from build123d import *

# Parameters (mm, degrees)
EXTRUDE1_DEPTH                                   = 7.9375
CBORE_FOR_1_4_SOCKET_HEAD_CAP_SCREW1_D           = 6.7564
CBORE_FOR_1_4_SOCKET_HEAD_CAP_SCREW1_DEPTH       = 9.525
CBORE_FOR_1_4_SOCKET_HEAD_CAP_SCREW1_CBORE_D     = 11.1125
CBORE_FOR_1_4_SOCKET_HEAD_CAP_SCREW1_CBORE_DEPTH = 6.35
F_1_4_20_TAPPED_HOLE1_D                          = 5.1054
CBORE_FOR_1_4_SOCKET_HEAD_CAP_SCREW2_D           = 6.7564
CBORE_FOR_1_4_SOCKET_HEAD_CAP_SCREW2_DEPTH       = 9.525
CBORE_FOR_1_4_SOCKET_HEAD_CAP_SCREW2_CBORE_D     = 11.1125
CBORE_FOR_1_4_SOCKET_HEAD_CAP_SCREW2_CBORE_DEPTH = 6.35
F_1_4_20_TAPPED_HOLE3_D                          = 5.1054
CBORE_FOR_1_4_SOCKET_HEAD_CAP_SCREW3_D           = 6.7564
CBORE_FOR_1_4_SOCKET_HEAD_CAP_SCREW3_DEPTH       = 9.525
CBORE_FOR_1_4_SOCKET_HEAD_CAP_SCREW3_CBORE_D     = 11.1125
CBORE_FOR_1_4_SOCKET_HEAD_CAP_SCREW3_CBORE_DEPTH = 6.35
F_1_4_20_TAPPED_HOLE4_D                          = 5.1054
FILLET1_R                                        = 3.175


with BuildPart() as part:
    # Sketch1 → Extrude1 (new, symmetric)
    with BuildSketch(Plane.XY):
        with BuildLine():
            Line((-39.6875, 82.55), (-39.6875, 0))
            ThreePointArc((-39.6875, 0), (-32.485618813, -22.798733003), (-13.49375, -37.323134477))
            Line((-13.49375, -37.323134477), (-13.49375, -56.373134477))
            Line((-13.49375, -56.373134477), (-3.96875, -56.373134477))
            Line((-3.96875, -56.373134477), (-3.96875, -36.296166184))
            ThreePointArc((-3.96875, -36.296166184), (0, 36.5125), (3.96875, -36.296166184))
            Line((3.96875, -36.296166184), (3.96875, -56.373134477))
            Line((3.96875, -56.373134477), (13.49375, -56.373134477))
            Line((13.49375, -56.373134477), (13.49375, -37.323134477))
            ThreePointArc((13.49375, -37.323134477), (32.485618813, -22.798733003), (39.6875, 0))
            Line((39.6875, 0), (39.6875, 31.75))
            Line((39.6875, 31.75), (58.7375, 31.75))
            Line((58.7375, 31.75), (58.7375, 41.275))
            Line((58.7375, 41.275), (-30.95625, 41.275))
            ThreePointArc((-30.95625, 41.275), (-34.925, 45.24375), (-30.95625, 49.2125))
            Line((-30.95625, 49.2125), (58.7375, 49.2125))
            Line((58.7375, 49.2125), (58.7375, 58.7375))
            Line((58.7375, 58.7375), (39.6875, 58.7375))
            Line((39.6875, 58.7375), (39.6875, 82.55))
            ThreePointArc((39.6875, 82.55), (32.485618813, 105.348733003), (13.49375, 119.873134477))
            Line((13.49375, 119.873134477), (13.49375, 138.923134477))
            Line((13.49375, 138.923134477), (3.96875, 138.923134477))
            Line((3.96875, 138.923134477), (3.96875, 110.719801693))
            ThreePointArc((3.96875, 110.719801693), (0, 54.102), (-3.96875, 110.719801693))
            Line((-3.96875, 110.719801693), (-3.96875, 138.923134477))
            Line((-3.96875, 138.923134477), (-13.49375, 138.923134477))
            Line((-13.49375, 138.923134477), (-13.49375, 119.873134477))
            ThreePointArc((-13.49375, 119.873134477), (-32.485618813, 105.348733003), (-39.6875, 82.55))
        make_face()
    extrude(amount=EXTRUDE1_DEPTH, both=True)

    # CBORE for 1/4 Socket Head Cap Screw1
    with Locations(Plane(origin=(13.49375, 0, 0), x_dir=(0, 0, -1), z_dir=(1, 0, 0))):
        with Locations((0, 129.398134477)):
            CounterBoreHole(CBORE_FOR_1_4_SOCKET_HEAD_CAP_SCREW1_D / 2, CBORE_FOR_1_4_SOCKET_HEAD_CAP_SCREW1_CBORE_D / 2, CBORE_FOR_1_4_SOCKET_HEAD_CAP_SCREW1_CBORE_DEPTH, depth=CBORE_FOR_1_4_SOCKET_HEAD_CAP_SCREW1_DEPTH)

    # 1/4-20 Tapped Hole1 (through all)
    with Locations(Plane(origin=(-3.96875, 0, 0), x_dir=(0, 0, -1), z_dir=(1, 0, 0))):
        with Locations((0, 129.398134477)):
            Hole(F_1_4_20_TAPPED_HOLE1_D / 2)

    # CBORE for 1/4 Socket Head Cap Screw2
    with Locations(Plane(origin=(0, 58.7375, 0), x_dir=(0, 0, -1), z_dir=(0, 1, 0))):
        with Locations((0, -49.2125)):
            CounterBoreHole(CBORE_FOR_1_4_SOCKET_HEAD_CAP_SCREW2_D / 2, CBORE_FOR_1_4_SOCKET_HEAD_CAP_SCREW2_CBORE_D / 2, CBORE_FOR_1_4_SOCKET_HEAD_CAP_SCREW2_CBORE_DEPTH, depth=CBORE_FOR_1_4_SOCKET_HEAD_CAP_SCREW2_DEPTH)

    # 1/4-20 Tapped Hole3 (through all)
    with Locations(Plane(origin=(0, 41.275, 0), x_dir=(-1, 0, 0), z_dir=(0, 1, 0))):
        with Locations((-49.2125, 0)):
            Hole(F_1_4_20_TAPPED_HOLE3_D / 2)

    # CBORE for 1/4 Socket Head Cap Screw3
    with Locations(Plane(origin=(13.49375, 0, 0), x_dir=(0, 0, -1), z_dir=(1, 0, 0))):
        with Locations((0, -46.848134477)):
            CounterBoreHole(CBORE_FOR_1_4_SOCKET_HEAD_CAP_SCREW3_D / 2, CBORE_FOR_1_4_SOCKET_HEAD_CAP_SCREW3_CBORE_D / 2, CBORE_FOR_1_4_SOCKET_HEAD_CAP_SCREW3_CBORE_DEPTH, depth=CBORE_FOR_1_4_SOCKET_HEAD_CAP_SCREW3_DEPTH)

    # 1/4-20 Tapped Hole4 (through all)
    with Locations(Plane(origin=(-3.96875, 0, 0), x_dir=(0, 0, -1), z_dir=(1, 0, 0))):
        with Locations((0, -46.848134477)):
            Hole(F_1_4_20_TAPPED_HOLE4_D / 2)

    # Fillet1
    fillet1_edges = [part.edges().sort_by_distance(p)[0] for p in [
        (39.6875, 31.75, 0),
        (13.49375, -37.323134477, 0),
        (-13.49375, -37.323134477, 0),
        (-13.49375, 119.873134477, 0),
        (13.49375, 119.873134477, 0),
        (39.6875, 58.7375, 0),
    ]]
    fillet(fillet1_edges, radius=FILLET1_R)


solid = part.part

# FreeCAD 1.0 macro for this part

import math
import FreeCAD as App
import Part
import Sketcher
from FreeCAD import Vector
Q = App.Units.Quantity


def edges_at(feature, points):
    """Names of the edges that pass closest to the given points."""
    edges = feature.Shape.Edges
    near = lambda p: min(range(len(edges)), key=lambda i: edges[i].distToShape(Part.Vertex(*p))[0])
    return sorted({f"Edge{near(p) + 1}" for p in points})

doc = App.newDocument("Part")
body = doc.addObject("PartDesign::Body", "Body")

# Sketch on XY plane
sketch1 = body.newObject("Sketcher::SketchObject", "Sketch")
sketch1.AttachmentSupport = (doc.getObject("XY_Plane"), [""])
sketch1.MapMode = "FlatFace"
sketch1.addGeometry(Part.LineSegment(Vector(-39.7, 82.5, 0), Vector(-39.7, 0, 0)), False)
sketch1.addGeometry(Part.ArcOfCircle(Part.Circle(Vector(0, 0, 0), Vector(0, 0, 1), 39.7), math.radians(-180), math.radians(-110)), False)
sketch1.addGeometry(Part.LineSegment(Vector(-13.5, -37.3, 0), Vector(-13.5, -56.4, 0)), False)
sketch1.addGeometry(Part.LineSegment(Vector(-13.5, -56.4, 0), Vector(-4, -56.4, 0)), False)
sketch1.addGeometry(Part.LineSegment(Vector(-4, -56.4, 0), Vector(-4, -36.3, 0)), False)
sketch1.addGeometry(Part.ArcOfCircle(Part.Circle(Vector(0, 0, 0), Vector(0, 0, 1), 36.5), math.radians(-84), math.radians(264)), False)
sketch1.addGeometry(Part.LineSegment(Vector(4, -36.3, 0), Vector(4, -56.4, 0)), False)
sketch1.addGeometry(Part.LineSegment(Vector(4, -56.4, 0), Vector(13.5, -56.4, 0)), False)
sketch1.addGeometry(Part.LineSegment(Vector(13.5, -56.4, 0), Vector(13.5, -37.3, 0)), False)
sketch1.addGeometry(Part.ArcOfCircle(Part.Circle(Vector(0, 0, 0), Vector(0, 0, 1), 39.7), math.radians(-70), math.radians(0)), False)
sketch1.addGeometry(Part.LineSegment(Vector(39.7, 0, 0), Vector(39.7, 31.8, 0)), False)
sketch1.addGeometry(Part.LineSegment(Vector(39.7, 31.8, 0), Vector(58.7, 31.8, 0)), False)
sketch1.addGeometry(Part.LineSegment(Vector(58.7, 31.8, 0), Vector(58.7, 41.3, 0)), False)
sketch1.addGeometry(Part.LineSegment(Vector(58.7, 41.3, 0), Vector(-31, 41.3, 0)), False)
sketch1.addGeometry(Part.ArcOfCircle(Part.Circle(Vector(-31, 45.2, 0), Vector(0, 0, 1), 4), math.radians(90), math.radians(270)), False)
sketch1.addGeometry(Part.LineSegment(Vector(-31, 49.2, 0), Vector(58.7, 49.2, 0)), False)
sketch1.addGeometry(Part.LineSegment(Vector(58.7, 49.2, 0), Vector(58.7, 58.7, 0)), False)
sketch1.addGeometry(Part.LineSegment(Vector(58.7, 58.7, 0), Vector(39.7, 58.7, 0)), False)
sketch1.addGeometry(Part.LineSegment(Vector(39.7, 58.7, 0), Vector(39.7, 82.5, 0)), False)
sketch1.addGeometry(Part.ArcOfCircle(Part.Circle(Vector(0, 82.5, 0), Vector(0, 0, 1), 39.7), math.radians(0), math.radians(70)), False)
sketch1.addGeometry(Part.LineSegment(Vector(13.5, 119.9, 0), Vector(13.5, 138.9, 0)), False)
sketch1.addGeometry(Part.LineSegment(Vector(13.5, 138.9, 0), Vector(4, 138.9, 0)), False)
sketch1.addGeometry(Part.LineSegment(Vector(4, 138.9, 0), Vector(4, 110.7, 0)), False)
sketch1.addGeometry(Part.ArcOfCircle(Part.Circle(Vector(0, 82.5, 0), Vector(0, 0, 1), 28.4), math.radians(98), math.radians(442)), False)
sketch1.addGeometry(Part.LineSegment(Vector(-4, 110.7, 0), Vector(-4, 138.9, 0)), False)
sketch1.addGeometry(Part.LineSegment(Vector(-4, 138.9, 0), Vector(-13.5, 138.9, 0)), False)
sketch1.addGeometry(Part.LineSegment(Vector(-13.5, 138.9, 0), Vector(-13.5, 119.9, 0)), False)
sketch1.addGeometry(Part.ArcOfCircle(Part.Circle(Vector(0, 82.5, 0), Vector(0, 0, 1), 39.7), math.radians(110), math.radians(180)), False)
sketch1.addConstraint(Sketcher.Constraint("Tangent", 0, 2, 1, 1))
sketch1.addConstraint(Sketcher.Constraint("Coincident", 1, 2, 2, 1))
sketch1.addConstraint(Sketcher.Constraint("Coincident", 2, 2, 3, 1))
sketch1.addConstraint(Sketcher.Constraint("Coincident", 3, 2, 4, 1))
sketch1.addConstraint(Sketcher.Constraint("Coincident", 4, 2, 5, 2))
sketch1.addConstraint(Sketcher.Constraint("Coincident", 5, 1, 6, 1))
sketch1.addConstraint(Sketcher.Constraint("Coincident", 6, 2, 7, 1))
sketch1.addConstraint(Sketcher.Constraint("Coincident", 7, 2, 8, 1))
sketch1.addConstraint(Sketcher.Constraint("Coincident", 8, 2, 9, 1))
sketch1.addConstraint(Sketcher.Constraint("Tangent", 9, 2, 10, 1))
sketch1.addConstraint(Sketcher.Constraint("Coincident", 10, 2, 11, 1))
sketch1.addConstraint(Sketcher.Constraint("Coincident", 11, 2, 12, 1))
sketch1.addConstraint(Sketcher.Constraint("Coincident", 12, 2, 13, 1))
sketch1.addConstraint(Sketcher.Constraint("Tangent", 13, 2, 14, 2))
sketch1.addConstraint(Sketcher.Constraint("Tangent", 14, 1, 15, 1))
sketch1.addConstraint(Sketcher.Constraint("Coincident", 15, 2, 16, 1))
sketch1.addConstraint(Sketcher.Constraint("Coincident", 16, 2, 17, 1))
sketch1.addConstraint(Sketcher.Constraint("Coincident", 17, 2, 18, 1))
sketch1.addConstraint(Sketcher.Constraint("Tangent", 18, 2, 19, 1))
sketch1.addConstraint(Sketcher.Constraint("Coincident", 19, 2, 20, 1))
sketch1.addConstraint(Sketcher.Constraint("Coincident", 20, 2, 21, 1))
sketch1.addConstraint(Sketcher.Constraint("Coincident", 21, 2, 22, 1))
sketch1.addConstraint(Sketcher.Constraint("Coincident", 22, 2, 23, 2))
sketch1.addConstraint(Sketcher.Constraint("Coincident", 23, 1, 24, 1))
sketch1.addConstraint(Sketcher.Constraint("Coincident", 24, 2, 25, 1))
sketch1.addConstraint(Sketcher.Constraint("Coincident", 25, 2, 26, 1))
sketch1.addConstraint(Sketcher.Constraint("Coincident", 26, 2, 27, 1))
sketch1.addConstraint(Sketcher.Constraint("Tangent", 27, 2, 0, 1))
sketch1.addConstraint(Sketcher.Constraint("Vertical", 0))
sketch1.addConstraint(Sketcher.Constraint("Vertical", 2))
sketch1.addConstraint(Sketcher.Constraint("Horizontal", 3))
sketch1.addConstraint(Sketcher.Constraint("Vertical", 4))
sketch1.addConstraint(Sketcher.Constraint("Vertical", 6))
sketch1.addConstraint(Sketcher.Constraint("Horizontal", 7))
sketch1.addConstraint(Sketcher.Constraint("Vertical", 8))
sketch1.addConstraint(Sketcher.Constraint("Vertical", 10))
sketch1.addConstraint(Sketcher.Constraint("Horizontal", 11))
sketch1.addConstraint(Sketcher.Constraint("Vertical", 12))
sketch1.addConstraint(Sketcher.Constraint("Horizontal", 13))
sketch1.addConstraint(Sketcher.Constraint("Horizontal", 15))
sketch1.addConstraint(Sketcher.Constraint("Vertical", 16))
sketch1.addConstraint(Sketcher.Constraint("Horizontal", 17))
sketch1.addConstraint(Sketcher.Constraint("Vertical", 18))
sketch1.addConstraint(Sketcher.Constraint("Vertical", 20))
sketch1.addConstraint(Sketcher.Constraint("Horizontal", 21))
sketch1.addConstraint(Sketcher.Constraint("Vertical", 22))
sketch1.addConstraint(Sketcher.Constraint("Vertical", 24))
sketch1.addConstraint(Sketcher.Constraint("Horizontal", 25))
sketch1.addConstraint(Sketcher.Constraint("Vertical", 26))
sketch1.addConstraint(Sketcher.Constraint("Coincident", 1, 3, -1, 1))
sketch1.addConstraint(Sketcher.Constraint("Coincident", 5, 3, -1, 1))
sketch1.addConstraint(Sketcher.Constraint("Coincident", 9, 3, -1, 1))
sketch1.addConstraint(Sketcher.Constraint("Coincident", 23, 3, 19, 3))
sketch1.addConstraint(Sketcher.Constraint("Coincident", 27, 3, 19, 3))
sketch1.addConstraint(Sketcher.Constraint("Equal", 1, 9))
sketch1.addConstraint(Sketcher.Constraint("Equal", 9, 19))
sketch1.addConstraint(Sketcher.Constraint("Equal", 19, 27))
sketch1.addConstraint(Sketcher.Constraint("Symmetric", 3, 2, 6, 2, -2))
sketch1.addConstraint(Sketcher.Constraint("Symmetric", 21, 2, 24, 2, -2))
sketch1.addConstraint(Sketcher.Constraint("Horizontal", 1, 2, 8, 2))
sketch1.addConstraint(Sketcher.Constraint("Horizontal", 19, 2, 26, 2))
sketch1.addConstraint(Sketcher.Constraint("Vertical", 12, 2, 15, 2))
sketch1.addConstraint(Sketcher.Constraint("Vertical", 8, 2, 19, 2))
sketch1.addConstraint(Sketcher.Constraint("Vertical", 6, 2, 21, 2))
sketch1.addConstraint(Sketcher.Constraint("Equal", 17, 2))
sketch1.addConstraint(Sketcher.Constraint("Equal", 25, 12))
sketch1.addConstraint(Sketcher.Constraint("Equal", 12, 16))
sketch1.addConstraint(Sketcher.Constraint("Equal", 8, 20))
sketch1.addConstraint(Sketcher.Constraint("Radius", 23, Q("1.12 in")))
sketch1.addConstraint(Sketcher.Constraint("Radius", 1, Q("1.5625 in")))
sketch1.addConstraint(Sketcher.Constraint("Radius", 5, Q("1.4375 in")))
sketch1.addConstraint(Sketcher.Constraint("Radius", 14, Q("0.15625 in")))
sketch1.addConstraint(Sketcher.Constraint("DistanceY", 10, 2, 27, 3, Q("2 in")))
sketch1.addConstraint(Sketcher.Constraint("DistanceX", 11, 1, 11, 2, Q("0.75 in")))
sketch1.addConstraint(Sketcher.Constraint("DistanceY", 0, 2, 0, 1, Q("3.25 in")))
sketch1.addConstraint(Sketcher.Constraint("DistanceX", 3, 1, 3, 2, Q("0.375 in")))
sketch1.addConstraint(Sketcher.Constraint("DistanceX", 13, 2, 13, 1, Q("3.53125 in")))
sketch1.addConstraint(Sketcher.Constraint("DistanceX", 1, 2, -1, 1, Q("0.53125 in")))
pad1 = body.newObject("PartDesign::Pad", "Pad")
pad1.Profile = sketch1
pad1.Length = Q("0.625 in")
pad1.Midplane = True

# Sketch on YZ plane
sketch2 = body.newObject("Sketcher::SketchObject", "Sketch001")
sketch2.AttachmentSupport = (doc.getObject("YZ_Plane"), [""])
sketch2.MapMode = "FlatFace"
sketch2.AttachmentOffset = App.Placement(Vector(0, 0, 0.53125 * 25.4), App.Rotation())
sketch2.addGeometry(Part.Circle(Vector(129.4, 0, 0), Vector(0, 0, 1), 3.4), False)
sketch2.addConstraint(Sketcher.Constraint("PointOnObject", 0, 3, -1))
sketch2.addConstraint(Sketcher.Constraint("Diameter", 0, Q("0.266 in")))
sketch2.addConstraint(Sketcher.Constraint("DistanceX", -1, 1, 0, 3, Q("129.398134 mm")))
doc.recompute()
hole = body.newObject("PartDesign::Hole", "Hole")
hole.Profile = sketch2
hole.ThreadType = "None"
hole.Diameter = Q("0.266 in")
hole.DepthType = "Dimension"
hole.Depth = Q("0.375 in")
hole.DrillPoint = "Flat"
hole.HoleCutType = "Counterbore"
hole.HoleCutDiameter = Q("0.4375 in")
hole.HoleCutDepth = Q("0.25 in")

# Sketch on YZ plane
sketch3 = body.newObject("Sketcher::SketchObject", "Sketch002")
sketch3.AttachmentSupport = (doc.getObject("YZ_Plane"), [""])
sketch3.MapMode = "FlatFace"
sketch3.AttachmentOffset = App.Placement(Vector(0, 0, -0.15625 * 25.4), App.Rotation())
sketch3.addGeometry(Part.Circle(Vector(129.4, 0, 0), Vector(0, 0, 1), 2.6), False)
sketch3.addConstraint(Sketcher.Constraint("PointOnObject", 0, 3, -1))
sketch3.addConstraint(Sketcher.Constraint("Diameter", 0, Q("0.201 in")))
sketch3.addConstraint(Sketcher.Constraint("DistanceX", -1, 1, 0, 3, Q("129.398134 mm")))
doc.recompute()
hole2 = body.newObject("PartDesign::Hole", "Hole001")
hole2.Profile = sketch3
hole2.ThreadType = "None"
hole2.Diameter = Q("0.201 in")
hole2.DepthType = "ThroughAll"

# Sketch on XZ plane
sketch4 = body.newObject("Sketcher::SketchObject", "Sketch003")
sketch4.AttachmentSupport = (doc.getObject("XZ_Plane"), [""])
sketch4.MapMode = "FlatFace"
sketch4.AttachmentOffset = App.Placement(Vector(0, 0, -2.3125 * 25.4), App.Rotation())
sketch4.addGeometry(Part.Circle(Vector(49.2, 0, 0), Vector(0, 0, 1), 3.4), False)
sketch4.addConstraint(Sketcher.Constraint("PointOnObject", 0, 3, -1))
sketch4.addConstraint(Sketcher.Constraint("Diameter", 0, Q("0.266 in")))
sketch4.addConstraint(Sketcher.Constraint("DistanceX", -1, 1, 0, 3, Q("1.9375 in")))
doc.recompute()
hole3 = body.newObject("PartDesign::Hole", "Hole002")
hole3.Profile = sketch4
hole3.ThreadType = "None"
hole3.Diameter = Q("0.266 in")
hole3.DepthType = "Dimension"
hole3.Depth = Q("0.375 in")
hole3.DrillPoint = "Flat"
hole3.HoleCutType = "Counterbore"
hole3.HoleCutDiameter = Q("0.4375 in")
hole3.HoleCutDepth = Q("0.25 in")
hole3.Reversed = True

# Sketch on XZ plane
sketch5 = body.newObject("Sketcher::SketchObject", "Sketch004")
sketch5.AttachmentSupport = (doc.getObject("XZ_Plane"), [""])
sketch5.MapMode = "FlatFace"
sketch5.AttachmentOffset = App.Placement(Vector(0, 0, -1.625 * 25.4), App.Rotation())
sketch5.addGeometry(Part.Circle(Vector(49.2, 0, 0), Vector(0, 0, 1), 2.6), False)
sketch5.addConstraint(Sketcher.Constraint("PointOnObject", 0, 3, -1))
sketch5.addConstraint(Sketcher.Constraint("Diameter", 0, Q("0.201 in")))
sketch5.addConstraint(Sketcher.Constraint("DistanceX", -1, 1, 0, 3, Q("1.9375 in")))
doc.recompute()
hole4 = body.newObject("PartDesign::Hole", "Hole003")
hole4.Profile = sketch5
hole4.ThreadType = "None"
hole4.Diameter = Q("0.201 in")
hole4.DepthType = "ThroughAll"
hole4.Reversed = True

# Sketch on YZ plane
sketch6 = body.newObject("Sketcher::SketchObject", "Sketch005")
sketch6.AttachmentSupport = (doc.getObject("YZ_Plane"), [""])
sketch6.MapMode = "FlatFace"
sketch6.AttachmentOffset = App.Placement(Vector(0, 0, 0.53125 * 25.4), App.Rotation())
sketch6.addGeometry(Part.Circle(Vector(-46.8, 0, 0), Vector(0, 0, 1), 3.4), False)
sketch6.addConstraint(Sketcher.Constraint("PointOnObject", 0, 3, -1))
sketch6.addConstraint(Sketcher.Constraint("Diameter", 0, Q("0.266 in")))
sketch6.addConstraint(Sketcher.Constraint("DistanceX", 0, 3, -1, 1, Q("46.848134 mm")))
doc.recompute()
hole5 = body.newObject("PartDesign::Hole", "Hole004")
hole5.Profile = sketch6
hole5.ThreadType = "None"
hole5.Diameter = Q("0.266 in")
hole5.DepthType = "Dimension"
hole5.Depth = Q("0.375 in")
hole5.DrillPoint = "Flat"
hole5.HoleCutType = "Counterbore"
hole5.HoleCutDiameter = Q("0.4375 in")
hole5.HoleCutDepth = Q("0.25 in")

# Sketch on YZ plane
sketch7 = body.newObject("Sketcher::SketchObject", "Sketch006")
sketch7.AttachmentSupport = (doc.getObject("YZ_Plane"), [""])
sketch7.MapMode = "FlatFace"
sketch7.AttachmentOffset = App.Placement(Vector(0, 0, -0.15625 * 25.4), App.Rotation())
sketch7.addGeometry(Part.Circle(Vector(-46.8, 0, 0), Vector(0, 0, 1), 2.6), False)
sketch7.addConstraint(Sketcher.Constraint("PointOnObject", 0, 3, -1))
sketch7.addConstraint(Sketcher.Constraint("Diameter", 0, Q("0.201 in")))
sketch7.addConstraint(Sketcher.Constraint("DistanceX", 0, 3, -1, 1, Q("46.848134 mm")))
doc.recompute()
hole6 = body.newObject("PartDesign::Hole", "Hole005")
hole6.Profile = sketch7
hole6.ThreadType = "None"
hole6.Diameter = Q("0.201 in")
hole6.DepthType = "ThroughAll"
doc.recompute()

fillet = body.newObject("PartDesign::Fillet", "Fillet")
fillet.Base = (hole6, edges_at(hole6, [
    (39.688, 31.75, 0),
    (13.494, -37.323, 0),
    (-13.494, -37.323, 0),
    (-13.494, 119.873, 0),
    (13.494, 119.873, 0),
    (39.688, 58.737, 0),
]))
fillet.Radius = Q("0.125 in")

doc.recompute()
